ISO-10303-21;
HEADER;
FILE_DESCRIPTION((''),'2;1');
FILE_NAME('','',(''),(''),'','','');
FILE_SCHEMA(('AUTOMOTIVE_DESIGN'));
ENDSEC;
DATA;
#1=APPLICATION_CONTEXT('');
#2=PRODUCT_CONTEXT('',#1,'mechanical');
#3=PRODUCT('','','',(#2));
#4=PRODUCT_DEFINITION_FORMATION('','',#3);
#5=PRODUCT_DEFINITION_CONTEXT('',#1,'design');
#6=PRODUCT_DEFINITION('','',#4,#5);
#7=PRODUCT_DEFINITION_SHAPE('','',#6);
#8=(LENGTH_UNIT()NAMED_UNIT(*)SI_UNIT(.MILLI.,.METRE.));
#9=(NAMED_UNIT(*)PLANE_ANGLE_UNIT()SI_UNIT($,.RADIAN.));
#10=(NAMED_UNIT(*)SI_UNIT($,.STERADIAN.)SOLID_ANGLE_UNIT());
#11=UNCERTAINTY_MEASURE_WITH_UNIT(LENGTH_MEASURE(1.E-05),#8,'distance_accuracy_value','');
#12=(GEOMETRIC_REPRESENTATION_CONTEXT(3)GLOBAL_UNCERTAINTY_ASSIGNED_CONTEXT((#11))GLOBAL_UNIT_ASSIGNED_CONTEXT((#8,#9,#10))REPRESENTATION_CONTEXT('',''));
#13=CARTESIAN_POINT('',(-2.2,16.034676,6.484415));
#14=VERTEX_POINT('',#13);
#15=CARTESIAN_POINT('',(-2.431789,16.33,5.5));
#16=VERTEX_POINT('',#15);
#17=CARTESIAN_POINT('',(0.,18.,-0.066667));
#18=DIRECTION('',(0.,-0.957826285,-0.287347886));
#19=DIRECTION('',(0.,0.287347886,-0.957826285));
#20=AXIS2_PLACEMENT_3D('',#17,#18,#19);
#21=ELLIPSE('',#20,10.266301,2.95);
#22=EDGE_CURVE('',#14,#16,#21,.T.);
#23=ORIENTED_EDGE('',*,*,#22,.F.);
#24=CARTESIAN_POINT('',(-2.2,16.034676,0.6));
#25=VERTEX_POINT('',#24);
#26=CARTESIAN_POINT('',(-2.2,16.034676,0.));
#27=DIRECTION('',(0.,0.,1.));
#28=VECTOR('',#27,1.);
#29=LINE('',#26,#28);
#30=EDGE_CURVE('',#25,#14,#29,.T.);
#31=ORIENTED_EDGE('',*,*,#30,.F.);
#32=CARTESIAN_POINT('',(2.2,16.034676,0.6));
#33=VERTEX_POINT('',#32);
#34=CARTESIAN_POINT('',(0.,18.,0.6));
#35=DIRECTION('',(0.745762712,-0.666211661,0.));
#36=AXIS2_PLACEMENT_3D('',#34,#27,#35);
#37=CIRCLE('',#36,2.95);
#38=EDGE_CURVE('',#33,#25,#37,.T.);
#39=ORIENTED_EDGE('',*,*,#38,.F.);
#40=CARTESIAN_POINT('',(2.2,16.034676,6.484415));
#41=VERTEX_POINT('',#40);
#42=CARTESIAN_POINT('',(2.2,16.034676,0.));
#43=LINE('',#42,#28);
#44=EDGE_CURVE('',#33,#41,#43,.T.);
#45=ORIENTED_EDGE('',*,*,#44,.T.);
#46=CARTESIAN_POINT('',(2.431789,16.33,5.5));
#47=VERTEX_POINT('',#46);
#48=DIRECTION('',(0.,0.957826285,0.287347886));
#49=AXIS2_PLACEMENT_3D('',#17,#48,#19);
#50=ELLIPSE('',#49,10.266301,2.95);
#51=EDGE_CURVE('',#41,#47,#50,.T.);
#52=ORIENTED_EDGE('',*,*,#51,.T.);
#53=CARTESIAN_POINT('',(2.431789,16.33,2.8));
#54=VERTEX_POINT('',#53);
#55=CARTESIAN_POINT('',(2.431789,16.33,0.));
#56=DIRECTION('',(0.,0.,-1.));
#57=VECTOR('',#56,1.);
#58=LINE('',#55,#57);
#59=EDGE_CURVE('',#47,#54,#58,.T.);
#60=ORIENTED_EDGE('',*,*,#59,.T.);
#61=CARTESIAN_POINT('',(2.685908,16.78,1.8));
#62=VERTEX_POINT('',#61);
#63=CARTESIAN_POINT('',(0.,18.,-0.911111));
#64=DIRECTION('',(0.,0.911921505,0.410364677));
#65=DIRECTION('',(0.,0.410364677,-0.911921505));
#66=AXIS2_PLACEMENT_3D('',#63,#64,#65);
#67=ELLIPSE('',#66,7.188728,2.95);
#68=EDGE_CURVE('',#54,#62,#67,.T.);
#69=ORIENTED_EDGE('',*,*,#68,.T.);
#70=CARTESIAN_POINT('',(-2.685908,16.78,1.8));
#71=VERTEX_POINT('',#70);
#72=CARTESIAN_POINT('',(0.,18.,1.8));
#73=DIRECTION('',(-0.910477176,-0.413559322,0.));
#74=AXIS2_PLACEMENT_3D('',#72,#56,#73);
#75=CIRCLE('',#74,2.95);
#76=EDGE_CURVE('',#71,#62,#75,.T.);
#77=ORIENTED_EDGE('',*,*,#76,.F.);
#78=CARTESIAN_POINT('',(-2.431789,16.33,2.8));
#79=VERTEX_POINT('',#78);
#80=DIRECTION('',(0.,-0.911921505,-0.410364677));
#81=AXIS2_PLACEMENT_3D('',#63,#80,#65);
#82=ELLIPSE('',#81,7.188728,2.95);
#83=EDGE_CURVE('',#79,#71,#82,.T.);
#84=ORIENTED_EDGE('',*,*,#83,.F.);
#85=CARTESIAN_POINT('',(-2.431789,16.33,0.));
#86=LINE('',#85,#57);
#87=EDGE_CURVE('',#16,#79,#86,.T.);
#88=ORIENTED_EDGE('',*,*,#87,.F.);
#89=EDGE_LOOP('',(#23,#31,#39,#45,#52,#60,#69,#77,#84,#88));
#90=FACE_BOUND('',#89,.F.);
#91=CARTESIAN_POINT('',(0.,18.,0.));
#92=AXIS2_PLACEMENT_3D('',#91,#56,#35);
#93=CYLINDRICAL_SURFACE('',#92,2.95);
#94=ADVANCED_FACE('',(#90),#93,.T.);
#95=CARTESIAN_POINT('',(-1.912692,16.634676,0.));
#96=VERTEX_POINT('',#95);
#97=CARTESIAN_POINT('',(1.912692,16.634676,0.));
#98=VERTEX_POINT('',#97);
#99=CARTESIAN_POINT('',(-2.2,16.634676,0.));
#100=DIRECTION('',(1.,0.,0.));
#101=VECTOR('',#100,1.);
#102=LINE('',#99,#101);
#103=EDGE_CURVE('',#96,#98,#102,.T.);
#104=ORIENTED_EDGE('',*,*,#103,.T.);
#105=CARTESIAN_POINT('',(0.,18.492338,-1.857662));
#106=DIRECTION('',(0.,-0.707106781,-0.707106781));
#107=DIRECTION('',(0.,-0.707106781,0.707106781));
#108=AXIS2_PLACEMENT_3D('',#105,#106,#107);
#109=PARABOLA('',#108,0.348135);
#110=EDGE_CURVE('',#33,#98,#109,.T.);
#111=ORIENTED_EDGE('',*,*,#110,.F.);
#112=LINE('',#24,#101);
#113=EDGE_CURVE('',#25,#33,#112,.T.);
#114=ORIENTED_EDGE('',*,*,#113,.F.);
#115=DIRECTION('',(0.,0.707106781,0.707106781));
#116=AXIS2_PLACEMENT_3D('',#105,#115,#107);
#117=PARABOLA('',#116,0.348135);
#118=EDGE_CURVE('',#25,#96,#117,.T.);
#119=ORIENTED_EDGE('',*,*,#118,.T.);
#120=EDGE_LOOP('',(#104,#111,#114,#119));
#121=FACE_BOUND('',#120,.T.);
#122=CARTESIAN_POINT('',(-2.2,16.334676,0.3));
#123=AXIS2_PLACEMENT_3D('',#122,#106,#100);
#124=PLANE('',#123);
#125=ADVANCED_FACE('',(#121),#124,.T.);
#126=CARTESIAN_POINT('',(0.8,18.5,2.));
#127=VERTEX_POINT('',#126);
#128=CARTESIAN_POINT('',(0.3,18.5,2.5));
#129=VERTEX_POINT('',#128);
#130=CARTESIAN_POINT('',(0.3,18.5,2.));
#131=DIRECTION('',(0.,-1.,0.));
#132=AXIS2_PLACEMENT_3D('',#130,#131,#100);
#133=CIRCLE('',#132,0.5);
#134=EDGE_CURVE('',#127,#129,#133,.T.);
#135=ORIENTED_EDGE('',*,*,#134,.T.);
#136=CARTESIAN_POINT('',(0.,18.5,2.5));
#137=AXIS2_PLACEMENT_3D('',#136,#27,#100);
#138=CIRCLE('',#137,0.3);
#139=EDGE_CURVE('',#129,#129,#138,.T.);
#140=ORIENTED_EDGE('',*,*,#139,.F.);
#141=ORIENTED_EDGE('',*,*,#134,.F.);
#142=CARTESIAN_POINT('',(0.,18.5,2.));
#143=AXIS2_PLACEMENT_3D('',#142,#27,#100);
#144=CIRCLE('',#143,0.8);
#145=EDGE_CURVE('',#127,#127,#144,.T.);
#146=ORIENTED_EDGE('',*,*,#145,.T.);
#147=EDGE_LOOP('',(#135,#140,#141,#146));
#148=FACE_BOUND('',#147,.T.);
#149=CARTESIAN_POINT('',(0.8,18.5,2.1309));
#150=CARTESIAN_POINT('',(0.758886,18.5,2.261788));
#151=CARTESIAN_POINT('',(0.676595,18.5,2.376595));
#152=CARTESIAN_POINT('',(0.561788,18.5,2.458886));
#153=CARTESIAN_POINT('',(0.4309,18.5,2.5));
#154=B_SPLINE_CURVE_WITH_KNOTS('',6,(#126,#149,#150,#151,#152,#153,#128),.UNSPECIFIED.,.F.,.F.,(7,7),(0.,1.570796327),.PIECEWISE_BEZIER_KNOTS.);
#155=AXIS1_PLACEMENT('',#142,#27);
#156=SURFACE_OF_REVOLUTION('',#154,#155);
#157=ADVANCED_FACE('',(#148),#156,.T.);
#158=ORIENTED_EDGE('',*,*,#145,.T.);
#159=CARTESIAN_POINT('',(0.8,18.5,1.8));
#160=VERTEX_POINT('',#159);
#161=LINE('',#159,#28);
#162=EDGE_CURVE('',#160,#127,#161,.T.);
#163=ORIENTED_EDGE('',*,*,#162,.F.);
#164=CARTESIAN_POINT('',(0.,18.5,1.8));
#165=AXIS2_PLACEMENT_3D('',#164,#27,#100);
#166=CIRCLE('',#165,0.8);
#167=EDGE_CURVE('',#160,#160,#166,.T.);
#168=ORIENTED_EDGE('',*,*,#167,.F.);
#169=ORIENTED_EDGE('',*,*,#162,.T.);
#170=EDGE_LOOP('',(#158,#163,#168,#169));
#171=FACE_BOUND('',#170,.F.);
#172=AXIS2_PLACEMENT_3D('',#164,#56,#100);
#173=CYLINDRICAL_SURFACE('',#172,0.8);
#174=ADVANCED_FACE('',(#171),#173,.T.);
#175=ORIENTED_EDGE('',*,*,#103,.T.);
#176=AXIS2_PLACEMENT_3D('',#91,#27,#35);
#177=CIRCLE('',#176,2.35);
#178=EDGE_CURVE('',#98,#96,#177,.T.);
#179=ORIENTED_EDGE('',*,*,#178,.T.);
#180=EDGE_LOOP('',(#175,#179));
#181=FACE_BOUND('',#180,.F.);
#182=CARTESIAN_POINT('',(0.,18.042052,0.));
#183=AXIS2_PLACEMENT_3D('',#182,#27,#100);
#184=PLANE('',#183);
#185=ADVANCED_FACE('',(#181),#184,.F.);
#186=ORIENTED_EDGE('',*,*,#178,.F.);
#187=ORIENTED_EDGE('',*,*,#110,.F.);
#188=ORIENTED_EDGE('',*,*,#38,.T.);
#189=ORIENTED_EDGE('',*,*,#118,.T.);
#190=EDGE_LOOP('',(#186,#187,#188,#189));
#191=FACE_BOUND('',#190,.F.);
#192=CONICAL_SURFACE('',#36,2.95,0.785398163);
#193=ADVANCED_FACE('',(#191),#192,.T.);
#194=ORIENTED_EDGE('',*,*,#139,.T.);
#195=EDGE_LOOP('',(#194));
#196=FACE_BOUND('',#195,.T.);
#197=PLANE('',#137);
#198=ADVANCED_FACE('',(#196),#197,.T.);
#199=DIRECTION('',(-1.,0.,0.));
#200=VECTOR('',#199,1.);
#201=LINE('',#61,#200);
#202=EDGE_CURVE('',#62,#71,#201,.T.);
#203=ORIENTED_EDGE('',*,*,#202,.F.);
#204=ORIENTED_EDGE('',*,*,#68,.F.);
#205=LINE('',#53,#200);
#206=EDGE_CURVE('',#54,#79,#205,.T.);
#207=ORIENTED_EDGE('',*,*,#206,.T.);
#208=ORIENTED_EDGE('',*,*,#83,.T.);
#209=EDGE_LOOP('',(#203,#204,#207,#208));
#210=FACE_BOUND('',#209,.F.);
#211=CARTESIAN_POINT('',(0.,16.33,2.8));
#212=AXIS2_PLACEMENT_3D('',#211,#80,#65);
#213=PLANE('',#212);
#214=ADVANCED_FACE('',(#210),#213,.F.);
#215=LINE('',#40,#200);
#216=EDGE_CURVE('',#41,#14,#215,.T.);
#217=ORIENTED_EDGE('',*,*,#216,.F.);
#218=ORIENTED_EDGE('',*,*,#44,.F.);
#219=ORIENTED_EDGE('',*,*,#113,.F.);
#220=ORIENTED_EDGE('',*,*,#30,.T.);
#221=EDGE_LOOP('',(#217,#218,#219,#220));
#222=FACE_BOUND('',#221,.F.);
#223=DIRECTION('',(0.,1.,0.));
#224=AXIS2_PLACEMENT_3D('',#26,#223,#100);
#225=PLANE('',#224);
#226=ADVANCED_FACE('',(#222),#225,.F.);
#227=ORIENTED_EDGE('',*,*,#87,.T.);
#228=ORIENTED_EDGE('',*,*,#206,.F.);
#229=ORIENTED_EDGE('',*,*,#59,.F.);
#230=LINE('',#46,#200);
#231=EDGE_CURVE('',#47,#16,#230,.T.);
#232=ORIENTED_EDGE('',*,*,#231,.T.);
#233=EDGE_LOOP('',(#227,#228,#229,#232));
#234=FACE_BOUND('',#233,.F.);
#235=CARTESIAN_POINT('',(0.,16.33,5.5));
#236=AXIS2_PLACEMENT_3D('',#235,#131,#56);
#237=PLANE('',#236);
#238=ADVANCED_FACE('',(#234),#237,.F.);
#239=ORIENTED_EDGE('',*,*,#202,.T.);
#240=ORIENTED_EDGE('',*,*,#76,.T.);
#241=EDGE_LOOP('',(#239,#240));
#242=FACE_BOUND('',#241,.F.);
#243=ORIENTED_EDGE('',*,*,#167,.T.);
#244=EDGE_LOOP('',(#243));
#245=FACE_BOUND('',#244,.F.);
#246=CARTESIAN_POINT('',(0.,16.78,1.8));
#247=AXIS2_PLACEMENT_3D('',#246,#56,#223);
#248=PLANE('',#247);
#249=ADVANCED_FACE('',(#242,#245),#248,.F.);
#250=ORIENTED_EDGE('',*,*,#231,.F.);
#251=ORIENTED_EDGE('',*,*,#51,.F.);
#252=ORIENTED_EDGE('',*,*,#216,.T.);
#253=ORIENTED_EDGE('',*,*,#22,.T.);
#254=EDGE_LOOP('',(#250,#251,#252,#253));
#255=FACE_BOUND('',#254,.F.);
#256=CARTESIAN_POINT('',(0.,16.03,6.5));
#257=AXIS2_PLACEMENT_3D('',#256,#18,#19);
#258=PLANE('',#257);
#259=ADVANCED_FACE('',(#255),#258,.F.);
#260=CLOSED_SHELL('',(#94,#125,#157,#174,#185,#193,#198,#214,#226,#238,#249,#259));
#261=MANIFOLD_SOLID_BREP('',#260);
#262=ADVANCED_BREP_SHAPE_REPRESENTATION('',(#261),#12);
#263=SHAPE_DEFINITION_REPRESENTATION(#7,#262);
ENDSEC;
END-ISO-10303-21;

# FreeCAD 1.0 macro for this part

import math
import FreeCAD as App
import Part
import Sketcher
Q = App.Units.Quantity


def edges_at(feature, points):
    """Names of the edges that pass closest to the given points."""
    edges = feature.Shape.Edges
    near = lambda p: min(range(len(edges)), key=lambda i: edges[i].distToShape(Part.Vertex(*p))[0])
    return sorted({f"Edge{near(p) + 1}" for p in points})


def add_polygon(sketch, points):
    """Adds a closed chain of lines whose ends are joined by coincident constraints."""
    first, n = sketch.GeometryCount, len(points)
    for a, b in zip(points, points[1:] + points[:1]):
        sketch.addGeometry(Part.LineSegment(App.Vector(*a, 0), App.Vector(*b, 0)), False)
    for i in range(n):
        sketch.addConstraint(Sketcher.Constraint("Coincident", first + i, 2, first + (i + 1) % n, 1))

doc = App.newDocument("Part")
body = doc.addObject("PartDesign::Body", "Body")

sketch1 = body.newObject("Sketcher::SketchObject", "Sketch")
sketch1.AttachmentSupport = (doc.getObject("XY_Plane"), [""])
sketch1.MapMode = "FlatFace"
sketch1.addGeometry([
    Part.ArcOfCircle(Part.Circle(App.Vector(0, 0, 0), App.Vector(0, 0, 1), 3), math.radians(-42), math.radians(222)),
    Part.LineSegment(App.Vector(-2.2, -2, 0), App.Vector(2.2, -2, 0)),
], False)
sketch1.addConstraint([
    Sketcher.Constraint("Coincident", 0, 1, 1, 2),
    Sketcher.Constraint("Coincident", 1, 1, 0, 2),
    Sketcher.Constraint("Horizontal", 1),
    Sketcher.Constraint("Coincident", 0, 3, -1, 1),
    Sketcher.Constraint("Radius", 0, Q("2.95 mm")),
    Sketcher.Constraint("DistanceX", 1, 1, 1, 2, Q("4.4 mm")),
])
pad1 = body.newObject("PartDesign::Pad", "Pad")
pad1.Profile = sketch1
pad1.Length = 6.5

sketch2 = body.newObject("Sketcher::SketchObject", "Sketch001")
sketch2.AttachmentSupport = (doc.getObject("YZ_Plane"), [""])
sketch2.MapMode = "FlatFace"
add_polygon(sketch2, [(-2, 6.5), (-1.7, 5.5), (-1.7, 2.8), (-1.2, 1.8), (4, 1.8), (4, 6.5)])
sketch2.addConstraint([
    Sketcher.Constraint("Vertical", 1),
    Sketcher.Constraint("Horizontal", 3),
    Sketcher.Constraint("Vertical", 4),
    Sketcher.Constraint("Horizontal", 5),
    Sketcher.Constraint("DistanceY", 1, 2, 1, 1, Q("2.7 mm")),
    Sketcher.Constraint("DistanceY", 4, 1, 4, 2, Q("4.7 mm")),
    Sketcher.Constraint("DistanceX", -1, 1, 3, 2, Q("4 mm")),
    Sketcher.Constraint("DistanceY", 2, 2, 1, 2, Q("1 mm")),
    Sketcher.Constraint("DistanceX", 3, 1, 3, 2, Q("5.22 mm")),
    Sketcher.Constraint("DistanceX", 5, 2, 5, 1, Q("5.97 mm")),
    Sketcher.Constraint("DistanceY", -1, 1, 0, 2, Q("5.5 mm")),
    Sketcher.Constraint("DistanceX", 5, 2, 0, 2, Q("0.3 mm")),
])
pocket1 = body.newObject("PartDesign::Pocket", "Pocket")
pocket1.Profile = sketch2
pocket1.Type = "ThroughAll"
pocket1.Midplane = True

sketch3 = body.newObject("Sketcher::SketchObject", "Sketch002")
sketch3.AttachmentSupport = (doc.getObject("XY_Plane"), [""])
sketch3.MapMode = "FlatFace"
sketch3.AttachmentOffset = App.Placement(App.Vector(0, 0, 1.8), App.Rotation())
sketch3.addGeometry(Part.Circle(App.Vector(0, 0.5, 0), App.Vector(0, 0, 1), 0.8), False)
sketch3.addConstraint([
    Sketcher.Constraint("PointOnObject", 0, 3, -2),
    Sketcher.Constraint("Diameter", 0, Q("1.6 mm")),
    Sketcher.Constraint("DistanceY", -1, 1, 0, 3, Q("0.5 mm")),
])
pad2 = body.newObject("PartDesign::Pad", "Pad001")
pad2.Profile = sketch3
pad2.Length = 0.7
doc.recompute()

fillet = body.newObject("PartDesign::Fillet", "Fillet")
fillet.Base = (pad2, edges_at(pad2, [(-0.8, 0.5, 2.5)]))
fillet.Radius = 0.5
doc.recompute()

chamfer = body.newObject("PartDesign::Chamfer", "Chamfer")
chamfer.Base = (fillet, edges_at(fillet, [(0, 2.95, 0), (0, -1.965, 0)]))
chamfer.Size = 0.6
body2 = doc.addObject("PartDesign::Body", "Body001")
doc.recompute()

body.Placement = App.Placement(App.Vector(0, 18, 0), App.Rotation(App.Vector(0, 0, 1), 0))
boolean = body2.newObject("PartDesign::Boolean", "Boolean")
boolean.Type = "Fuse"
boolean.addObjects([body])

doc.recompute()
